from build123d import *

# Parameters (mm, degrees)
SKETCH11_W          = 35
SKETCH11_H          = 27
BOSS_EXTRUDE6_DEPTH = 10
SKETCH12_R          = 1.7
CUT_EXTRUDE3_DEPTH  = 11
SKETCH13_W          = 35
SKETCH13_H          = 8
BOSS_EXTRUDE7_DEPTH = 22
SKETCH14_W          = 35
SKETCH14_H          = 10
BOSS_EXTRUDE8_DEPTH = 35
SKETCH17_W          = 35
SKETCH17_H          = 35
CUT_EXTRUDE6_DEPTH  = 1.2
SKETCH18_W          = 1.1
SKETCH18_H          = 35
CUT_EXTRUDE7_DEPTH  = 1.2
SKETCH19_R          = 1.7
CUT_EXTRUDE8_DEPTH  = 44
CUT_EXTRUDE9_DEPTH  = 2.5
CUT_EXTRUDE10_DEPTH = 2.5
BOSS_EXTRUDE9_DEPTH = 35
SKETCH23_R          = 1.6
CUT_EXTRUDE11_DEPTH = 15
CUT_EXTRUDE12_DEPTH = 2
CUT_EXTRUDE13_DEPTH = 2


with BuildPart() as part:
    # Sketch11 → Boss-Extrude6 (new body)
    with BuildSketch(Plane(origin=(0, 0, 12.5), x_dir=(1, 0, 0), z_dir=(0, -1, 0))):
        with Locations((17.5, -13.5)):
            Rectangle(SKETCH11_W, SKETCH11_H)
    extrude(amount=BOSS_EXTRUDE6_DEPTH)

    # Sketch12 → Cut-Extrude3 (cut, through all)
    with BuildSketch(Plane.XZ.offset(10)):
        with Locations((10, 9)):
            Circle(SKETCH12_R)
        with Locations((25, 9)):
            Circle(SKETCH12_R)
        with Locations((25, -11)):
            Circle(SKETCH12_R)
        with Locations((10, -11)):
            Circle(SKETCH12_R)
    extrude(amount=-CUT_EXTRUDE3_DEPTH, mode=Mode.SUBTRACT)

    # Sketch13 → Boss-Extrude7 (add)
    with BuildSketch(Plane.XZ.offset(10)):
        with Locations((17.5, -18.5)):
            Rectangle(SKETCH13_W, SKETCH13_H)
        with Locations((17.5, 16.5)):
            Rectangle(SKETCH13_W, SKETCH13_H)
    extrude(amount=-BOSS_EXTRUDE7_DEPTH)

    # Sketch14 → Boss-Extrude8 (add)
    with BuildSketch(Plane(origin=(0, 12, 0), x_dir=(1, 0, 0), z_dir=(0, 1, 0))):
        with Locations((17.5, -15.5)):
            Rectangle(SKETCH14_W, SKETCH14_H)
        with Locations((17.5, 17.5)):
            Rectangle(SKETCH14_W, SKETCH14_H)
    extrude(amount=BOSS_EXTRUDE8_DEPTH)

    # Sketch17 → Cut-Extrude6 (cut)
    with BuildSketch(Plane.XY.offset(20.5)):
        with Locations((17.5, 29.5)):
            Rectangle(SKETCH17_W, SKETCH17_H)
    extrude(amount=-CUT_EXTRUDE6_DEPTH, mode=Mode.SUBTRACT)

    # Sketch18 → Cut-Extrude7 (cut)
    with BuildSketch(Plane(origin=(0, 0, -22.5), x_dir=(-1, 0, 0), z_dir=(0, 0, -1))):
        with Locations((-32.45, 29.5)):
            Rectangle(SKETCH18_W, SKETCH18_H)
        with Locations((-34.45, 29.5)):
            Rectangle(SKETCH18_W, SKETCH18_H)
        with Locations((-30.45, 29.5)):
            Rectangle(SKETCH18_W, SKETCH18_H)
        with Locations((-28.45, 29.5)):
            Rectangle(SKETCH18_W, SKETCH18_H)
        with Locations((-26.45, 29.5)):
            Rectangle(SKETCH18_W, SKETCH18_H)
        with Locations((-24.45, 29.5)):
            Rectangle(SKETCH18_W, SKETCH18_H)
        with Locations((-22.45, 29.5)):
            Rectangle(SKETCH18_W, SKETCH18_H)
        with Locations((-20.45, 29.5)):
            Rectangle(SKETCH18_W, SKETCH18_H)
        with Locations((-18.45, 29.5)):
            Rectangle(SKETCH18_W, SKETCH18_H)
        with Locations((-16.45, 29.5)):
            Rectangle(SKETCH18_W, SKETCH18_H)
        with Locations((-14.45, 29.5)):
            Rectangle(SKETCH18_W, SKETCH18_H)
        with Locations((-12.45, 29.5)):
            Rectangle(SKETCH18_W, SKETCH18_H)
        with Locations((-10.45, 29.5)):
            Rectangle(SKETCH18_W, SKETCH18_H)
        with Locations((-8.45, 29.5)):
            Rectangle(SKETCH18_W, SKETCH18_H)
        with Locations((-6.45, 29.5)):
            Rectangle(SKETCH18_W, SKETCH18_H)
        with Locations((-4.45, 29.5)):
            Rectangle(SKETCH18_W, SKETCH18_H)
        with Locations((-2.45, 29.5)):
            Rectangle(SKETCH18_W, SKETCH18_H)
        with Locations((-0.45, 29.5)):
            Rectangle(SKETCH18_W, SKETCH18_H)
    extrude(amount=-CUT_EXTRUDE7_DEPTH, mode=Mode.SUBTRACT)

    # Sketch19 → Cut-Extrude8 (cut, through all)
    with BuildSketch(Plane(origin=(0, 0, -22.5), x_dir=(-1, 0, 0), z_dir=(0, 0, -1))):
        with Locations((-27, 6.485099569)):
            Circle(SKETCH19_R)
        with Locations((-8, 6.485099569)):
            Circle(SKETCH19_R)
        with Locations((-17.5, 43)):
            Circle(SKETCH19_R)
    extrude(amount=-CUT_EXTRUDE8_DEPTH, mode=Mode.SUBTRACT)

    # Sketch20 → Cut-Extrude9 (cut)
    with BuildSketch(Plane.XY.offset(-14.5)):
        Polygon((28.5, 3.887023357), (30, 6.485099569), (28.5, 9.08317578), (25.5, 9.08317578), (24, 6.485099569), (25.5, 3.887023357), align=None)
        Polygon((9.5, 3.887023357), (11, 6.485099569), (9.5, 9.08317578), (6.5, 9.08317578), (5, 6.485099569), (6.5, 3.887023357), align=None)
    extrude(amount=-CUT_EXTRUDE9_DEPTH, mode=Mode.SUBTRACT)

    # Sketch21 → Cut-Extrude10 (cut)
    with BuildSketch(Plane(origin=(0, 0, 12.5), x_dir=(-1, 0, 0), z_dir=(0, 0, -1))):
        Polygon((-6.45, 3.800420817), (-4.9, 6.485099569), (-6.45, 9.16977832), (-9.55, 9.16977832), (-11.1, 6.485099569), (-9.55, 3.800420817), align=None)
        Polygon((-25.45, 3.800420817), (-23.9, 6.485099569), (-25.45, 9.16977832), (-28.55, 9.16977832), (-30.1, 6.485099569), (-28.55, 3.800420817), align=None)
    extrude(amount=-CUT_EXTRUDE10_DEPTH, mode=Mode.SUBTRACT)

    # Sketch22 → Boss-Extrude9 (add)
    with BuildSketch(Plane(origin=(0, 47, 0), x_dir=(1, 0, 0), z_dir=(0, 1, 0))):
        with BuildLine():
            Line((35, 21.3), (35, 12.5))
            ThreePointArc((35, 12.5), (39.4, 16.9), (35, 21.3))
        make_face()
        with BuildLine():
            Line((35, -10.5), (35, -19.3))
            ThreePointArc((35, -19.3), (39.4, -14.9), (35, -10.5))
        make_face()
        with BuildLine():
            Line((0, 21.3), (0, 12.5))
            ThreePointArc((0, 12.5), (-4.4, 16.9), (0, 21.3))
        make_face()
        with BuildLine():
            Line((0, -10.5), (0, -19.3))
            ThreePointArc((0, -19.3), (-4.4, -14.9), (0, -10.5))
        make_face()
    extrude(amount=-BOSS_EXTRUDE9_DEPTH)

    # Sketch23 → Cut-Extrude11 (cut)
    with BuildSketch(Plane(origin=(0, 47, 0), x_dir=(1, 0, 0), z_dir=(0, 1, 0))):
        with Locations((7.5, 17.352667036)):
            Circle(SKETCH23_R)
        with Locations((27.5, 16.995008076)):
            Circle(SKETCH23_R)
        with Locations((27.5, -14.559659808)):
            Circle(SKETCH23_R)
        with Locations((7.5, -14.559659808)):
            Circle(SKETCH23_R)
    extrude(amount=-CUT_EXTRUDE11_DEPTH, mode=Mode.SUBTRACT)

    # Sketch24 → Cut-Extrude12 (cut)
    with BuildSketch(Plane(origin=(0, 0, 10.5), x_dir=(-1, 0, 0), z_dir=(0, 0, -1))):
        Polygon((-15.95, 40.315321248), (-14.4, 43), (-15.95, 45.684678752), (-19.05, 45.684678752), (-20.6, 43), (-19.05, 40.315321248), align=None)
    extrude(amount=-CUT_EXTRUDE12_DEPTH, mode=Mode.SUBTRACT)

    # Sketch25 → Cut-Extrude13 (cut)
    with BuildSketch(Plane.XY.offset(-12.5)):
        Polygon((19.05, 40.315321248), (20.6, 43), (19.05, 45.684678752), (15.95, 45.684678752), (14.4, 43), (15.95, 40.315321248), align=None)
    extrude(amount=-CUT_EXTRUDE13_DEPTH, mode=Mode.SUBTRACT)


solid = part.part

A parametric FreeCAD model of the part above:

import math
import FreeCAD as App
import Part
import Sketcher
from FreeCAD import Vector
Q = App.Units.Quantity


def add_polygon(sketch, points):
    """Adds a closed chain of lines whose ends are joined by coincident constraints."""
    first, n = sketch.GeometryCount, len(points)
    for a, b in zip(points, points[1:] + points[:1]):
        sketch.addGeometry(Part.LineSegment(App.Vector(*a, 0), App.Vector(*b, 0)), False)
    for i in range(n):
        sketch.addConstraint(Sketcher.Constraint("Coincident", first + i, 2, first + (i + 1) % n, 1))

doc = App.newDocument("Part")
body = doc.addObject("PartDesign::Body", "Body")

sketch1 = doc.addObject("Sketcher::SketchObject", "Sketch")
body.addObject(sketch1)
sketch1.AttachmentSupport = (doc.XZ_Plane, [""])
sketch1.MapMode = "FlatFace"
add_polygon(sketch1, [(0, 12.5), (0, -14.5), (35, -14.5), (35, 12.5)])
sketch1.addConstraint(Sketcher.Constraint("Vertical", 0))
sketch1.addConstraint(Sketcher.Constraint("Horizontal", 1))
sketch1.addConstraint(Sketcher.Constraint("Vertical", 2))
sketch1.addConstraint(Sketcher.Constraint("Horizontal", 3))
sketch1.addConstraint(Sketcher.Constraint("PointOnObject", 0, 2, -2))
sketch1.addConstraint(Sketcher.Constraint("DistanceX", 1, 1, 1, 2, Q("35 mm")))
sketch1.addConstraint(Sketcher.Constraint("DistanceY", 0, 2, 0, 1, Q("27 mm")))
sketch1.addConstraint(Sketcher.Constraint("DistanceY", 0, 2, -1, 1, Q("14.5 mm")))
pad1 = doc.addObject("PartDesign::Pad", "Pad")
body.addObject(pad1)
pad1.Profile = sketch1
pad1.Length = 10

sketch2 = doc.addObject("Sketcher::SketchObject", "Sketch001")
body.addObject(sketch2)
sketch2.AttachmentSupport = (doc.XZ_Plane, [""])
sketch2.MapMode = "FlatFace"
sketch2.AttachmentOffset = App.Placement(Vector(0, 0, 10), App.Rotation())
sketch2.addGeometry(Part.Circle(Vector(10, 9, 0), Vector(0, 0, 1), 1.7), False)
sketch2.addGeometry(Part.Circle(Vector(25, 9, 0), Vector(0, 0, 1), 1.7), False)
sketch2.addGeometry(Part.Circle(Vector(25, -11, 0), Vector(0, 0, 1), 1.7), False)
sketch2.addGeometry(Part.Circle(Vector(10, -11, 0), Vector(0, 0, 1), 1.7), False)
sketch2.addConstraint(Sketcher.Constraint("Equal", 0, 1))
sketch2.addConstraint(Sketcher.Constraint("Equal", 1, 2))
sketch2.addConstraint(Sketcher.Constraint("Equal", 2, 3))
sketch2.addConstraint(Sketcher.Constraint("Horizontal", 0, 3, 1, 3))
sketch2.addConstraint(Sketcher.Constraint("Horizontal", 2, 3, 3, 3))
sketch2.addConstraint(Sketcher.Constraint("Vertical", 1, 3, 2, 3))
sketch2.addConstraint(Sketcher.Constraint("Vertical", 0, 3, 3, 3))
sketch2.addConstraint(Sketcher.Constraint("Diameter", 0, Q("3.4 mm")))
sketch2.addConstraint(Sketcher.Constraint("DistanceX", -1, 1, 0, 3, Q("10 mm")))
sketch2.addConstraint(Sketcher.Constraint("DistanceY", -1, 1, 0, 3, Q("9 mm")))
sketch2.addConstraint(Sketcher.Constraint("DistanceX", -1, 1, 1, 3, Q("25 mm")))
sketch2.addConstraint(Sketcher.Constraint("DistanceY", 2, 3, -1, 1, Q("11 mm")))
pocket1 = doc.addObject("PartDesign::Pocket", "Pocket")
body.addObject(pocket1)
pocket1.Profile = sketch2
pocket1.Type = "ThroughAll"

sketch3 = doc.addObject("Sketcher::SketchObject", "Sketch002")
body.addObject(sketch3)
sketch3.AttachmentSupport = (doc.XZ_Plane, [""])
sketch3.MapMode = "FlatFace"
sketch3.AttachmentOffset = App.Placement(Vector(0, 0, 10), App.Rotation())
add_polygon(sketch3, [(0, -14.5), (0, -22.5), (35, -22.5), (35, -14.5)])
add_polygon(sketch3, [(0, 20.5), (0, 12.5), (35, 12.5), (35, 20.5)])
sketch3.addConstraint(Sketcher.Constraint("Vertical", 0))
sketch3.addConstraint(Sketcher.Constraint("Horizontal", 1))
sketch3.addConstraint(Sketcher.Constraint("Vertical", 2))
sketch3.addConstraint(Sketcher.Constraint("Horizontal", 3))
sketch3.addConstraint(Sketcher.Constraint("Vertical", 4))
sketch3.addConstraint(Sketcher.Constraint("Horizontal", 5))
sketch3.addConstraint(Sketcher.Constraint("Vertical", 6))
sketch3.addConstraint(Sketcher.Constraint("Horizontal", 7))
sketch3.addConstraint(Sketcher.Constraint("PointOnObject", 0, 2, -2))
sketch3.addConstraint(Sketcher.Constraint("PointOnObject", 4, 2, -2))
sketch3.addConstraint(Sketcher.Constraint("Vertical", 2, 2, 5, 2))
sketch3.addConstraint(Sketcher.Constraint("Equal", 2, 4))
sketch3.addConstraint(Sketcher.Constraint("DistanceX", 1, 1, 1, 2, Q("35 mm")))
sketch3.addConstraint(Sketcher.Constraint("DistanceY", 0, 2, 0, 1, Q("8 mm")))
sketch3.addConstraint(Sketcher.Constraint("DistanceY", 3, 2, 4, 2, Q("27 mm")))
sketch3.addConstraint(Sketcher.Constraint("DistanceY", 0, 2, -1, 1, Q("22.5 mm")))
pad2 = doc.addObject("PartDesign::Pad", "Pad001")
body.addObject(pad2)
pad2.Profile = sketch3
pad2.Length = 22
pad2.Reversed = True

sketch4 = doc.addObject("Sketcher::SketchObject", "Sketch003")
body.addObject(sketch4)
sketch4.AttachmentSupport = (doc.XZ_Plane, [""])
sketch4.MapMode = "FlatFace"
sketch4.AttachmentOffset = App.Placement(Vector(0, 0, -12), App.Rotation())
add_polygon(sketch4, [(0, 10.5), (0, 20.5), (35, 20.5), (35, 10.5)])
add_polygon(sketch4, [(0, -22.5), (0, -12.5), (35, -12.5), (35, -22.5)])
sketch4.addConstraint(Sketcher.Constraint("Vertical", 0))
sketch4.addConstraint(Sketcher.Constraint("Horizontal", 1))
sketch4.addConstraint(Sketcher.Constraint("Vertical", 2))
sketch4.addConstraint(Sketcher.Constraint("Horizontal", 3))
sketch4.addConstraint(Sketcher.Constraint("Vertical", 4))
sketch4.addConstraint(Sketcher.Constraint("Horizontal", 5))
sketch4.addConstraint(Sketcher.Constraint("Vertical", 6))
sketch4.addConstraint(Sketcher.Constraint("Horizontal", 7))
sketch4.addConstraint(Sketcher.Constraint("PointOnObject", 0, 2, -2))
sketch4.addConstraint(Sketcher.Constraint("PointOnObject", 4, 2, -2))
sketch4.addConstraint(Sketcher.Constraint("Vertical", 2, 2, 5, 2))
sketch4.addConstraint(Sketcher.Constraint("Equal", 2, 4))
sketch4.addConstraint(Sketcher.Constraint("DistanceX", 1, 1, 1, 2, Q("35 mm")))
sketch4.addConstraint(Sketcher.Constraint("DistanceY", 0, 1, 0, 2, Q("10 mm")))
sketch4.addConstraint(Sketcher.Constraint("DistanceY", 4, 2, 3, 2, Q("23 mm")))
sketch4.addConstraint(Sketcher.Constraint("DistanceY", -1, 1, 0, 2, Q("20.5 mm")))
pad3 = doc.addObject("PartDesign::Pad", "Pad002")
body.addObject(pad3)
pad3.Profile = sketch4
pad3.Length = 35
pad3.Reversed = True

sketch5 = doc.addObject("Sketcher::SketchObject", "Sketch004")
body.addObject(sketch5)
sketch5.AttachmentSupport = (doc.XY_Plane, [""])
sketch5.MapMode = "FlatFace"
sketch5.AttachmentOffset = App.Placement(Vector(0, 0, 20.5), App.Rotation())
add_polygon(sketch5, [(0, 47), (0, 12), (35, 12), (35, 47)])
sketch5.addConstraint(Sketcher.Constraint("Vertical", 0))
sketch5.addConstraint(Sketcher.Constraint("Horizontal", 1))
sketch5.addConstraint(Sketcher.Constraint("Vertical", 2))
sketch5.addConstraint(Sketcher.Constraint("Horizontal", 3))
sketch5.addConstraint(Sketcher.Constraint("PointOnObject", 0, 2, -2))
sketch5.addConstraint(Sketcher.Constraint("Equal", 3, 0))
sketch5.addConstraint(Sketcher.Constraint("DistanceX", 1, 1, 1, 2, Q("35 mm")))
sketch5.addConstraint(Sketcher.Constraint("DistanceY", -1, 1, 0, 2, Q("12 mm")))
pocket2 = doc.addObject("PartDesign::Pocket", "Pocket001")
body.addObject(pocket2)
pocket2.Profile = sketch5
pocket2.Length = 1.2

sketch6 = doc.addObject("Sketcher::SketchObject", "Sketch005")
body.addObject(sketch6)
sketch6.AttachmentSupport = (doc.XY_Plane, [""])
sketch6.MapMode = "FlatFace"
sketch6.AttachmentOffset = App.Placement(Vector(0, 0, -22.5), App.Rotation())
add_polygon(sketch6, [(33, 47), (33, 12), (31.9, 12), (31.9, 47)])
add_polygon(sketch6, [(35, 47), (35, 12), (33.9, 12), (33.9, 47)])
add_polygon(sketch6, [(31, 47), (31, 12), (29.9, 12), (29.9, 47)])
add_polygon(sketch6, [(29, 47), (29, 12), (27.9, 12), (27.9, 47)])
add_polygon(sketch6, [(27, 47), (27, 12), (25.9, 12), (25.9, 47)])
add_polygon(sketch6, [(25, 47), (25, 12), (23.9, 12), (23.9, 47)])
add_polygon(sketch6, [(23, 47), (23, 12), (21.9, 12), (21.9, 47)])
add_polygon(sketch6, [(21, 47), (21, 12), (19.9, 12), (19.9, 47)])
add_polygon(sketch6, [(19, 47), (19, 12), (17.9, 12), (17.9, 47)])
add_polygon(sketch6, [(17, 47), (17, 12), (15.9, 12), (15.9, 47)])
add_polygon(sketch6, [(15, 47), (15, 12), (13.9, 12), (13.9, 47)])
add_polygon(sketch6, [(13, 47), (13, 12), (11.9, 12), (11.9, 47)])
add_polygon(sketch6, [(11, 47), (11, 12), (9.9, 12), (9.9, 47)])
add_polygon(sketch6, [(9, 47), (9, 12), (7.9, 12), (7.9, 47)])
add_polygon(sketch6, [(7, 47), (7, 12), (5.9, 12), (5.9, 47)])
add_polygon(sketch6, [(5, 47), (5, 12), (3.9, 12), (3.9, 47)])
add_polygon(sketch6, [(3, 47), (3, 12), (1.9, 12), (1.9, 47)])
add_polygon(sketch6, [(1, 47), (1, 12), (-0.1, 12), (-0.1, 47)])
sketch6.addConstraint(Sketcher.Constraint("Vertical", 0))
sketch6.addConstraint(Sketcher.Constraint("Horizontal", 1))
sketch6.addConstraint(Sketcher.Constraint("Vertical", 2))
sketch6.addConstraint(Sketcher.Constraint("Horizontal", 3))
sketch6.addConstraint(Sketcher.Constraint("Vertical", 4))
sketch6.addConstraint(Sketcher.Constraint("Horizontal", 5))
sketch6.addConstraint(Sketcher.Constraint("Vertical", 6))
sketch6.addConstraint(Sketcher.Constraint("Horizontal", 7))
sketch6.addConstraint(Sketcher.Constraint("Vertical", 8))
sketch6.addConstraint(Sketcher.Constraint("Horizontal", 9))
sketch6.addConstraint(Sketcher.Constraint("Vertical", 10))
sketch6.addConstraint(Sketcher.Constraint("Horizontal", 11))
sketch6.addConstraint(Sketcher.Constraint("Vertical", 12))
sketch6.addConstraint(Sketcher.Constraint("Horizontal", 13))
sketch6.addConstraint(Sketcher.Constraint("Vertical", 14))
sketch6.addConstraint(Sketcher.Constraint("Horizontal", 15))
sketch6.addConstraint(Sketcher.Constraint("Vertical", 16))
sketch6.addConstraint(Sketcher.Constraint("Horizontal", 17))
sketch6.addConstraint(Sketcher.Constraint("Vertical", 18))
sketch6.addConstraint(Sketcher.Constraint("Horizontal", 19))
sketch6.addConstraint(Sketcher.Constraint("Vertical", 20))
sketch6.addConstraint(Sketcher.Constraint("Horizontal", 21))
sketch6.addConstraint(Sketcher.Constraint("Vertical", 22))
sketch6.addConstraint(Sketcher.Constraint("Horizontal", 23))
sketch6.addConstraint(Sketcher.Constraint("Vertical", 24))
sketch6.addConstraint(Sketcher.Constraint("Horizontal", 25))
sketch6.addConstraint(Sketcher.Constraint("Vertical", 26))
sketch6.addConstraint(Sketcher.Constraint("Horizontal", 27))
sketch6.addConstraint(Sketcher.Constraint("Vertical", 28))
sketch6.addConstraint(Sketcher.Constraint("Horizontal", 29))
sketch6.addConstraint(Sketcher.Constraint("Vertical", 30))
sketch6.addConstraint(Sketcher.Constraint("Horizontal", 31))
sketch6.addConstraint(Sketcher.Constraint("Vertical", 32))
sketch6.addConstraint(Sketcher.Constraint("Horizontal", 33))
sketch6.addConstraint(Sketcher.Constraint("Vertical", 34))
sketch6.addConstraint(Sketcher.Constraint("Horizontal", 35))
sketch6.addConstraint(Sketcher.Constraint("Vertical", 36))
sketch6.addConstraint(Sketcher.Constraint("Horizontal", 37))
sketch6.addConstraint(Sketcher.Constraint("Vertical", 38))
sketch6.addConstraint(Sketcher.Constraint("Horizontal", 39))
sketch6.addConstraint(Sketcher.Constraint("Vertical", 40))
sketch6.addConstraint(Sketcher.Constraint("Horizontal", 41))
sketch6.addConstraint(Sketcher.Constraint("Vertical", 42))
sketch6.addConstraint(Sketcher.Constraint("Horizontal", 43))
sketch6.addConstraint(Sketcher.Constraint("Vertical", 44))
sketch6.addConstraint(Sketcher.Constraint("Horizontal", 45))
sketch6.addConstraint(Sketcher.Constraint("Vertical", 46))
sketch6.addConstraint(Sketcher.Constraint("Horizontal", 47))
sketch6.addConstraint(Sketcher.Constraint("Vertical", 48))
sketch6.addConstraint(Sketcher.Constraint("Horizontal", 49))
sketch6.addConstraint(Sketcher.Constraint("Vertical", 50))
sketch6.addConstraint(Sketcher.Constraint("Horizontal", 51))
sketch6.addConstraint(Sketcher.Constraint("Vertical", 52))
sketch6.addConstraint(Sketcher.Constraint("Horizontal", 53))
sketch6.addConstraint(Sketcher.Constraint("Vertical", 54))
sketch6.addConstraint(Sketcher.Constraint("Horizontal", 55))
sketch6.addConstraint(Sketcher.Constraint("Vertical", 56))
sketch6.addConstraint(Sketcher.Constraint("Horizontal", 57))
sketch6.addConstraint(Sketcher.Constraint("Vertical", 58))
sketch6.addConstraint(Sketcher.Constraint("Horizontal", 59))
sketch6.addConstraint(Sketcher.Constraint("Vertical", 60))
sketch6.addConstraint(Sketcher.Constraint("Horizontal", 61))
sketch6.addConstraint(Sketcher.Constraint("Vertical", 62))
sketch6.addConstraint(Sketcher.Constraint("Horizontal", 63))
sketch6.addConstraint(Sketcher.Constraint("Vertical", 64))
sketch6.addConstraint(Sketcher.Constraint("Horizontal", 65))
sketch6.addConstraint(Sketcher.Constraint("Vertical", 66))
sketch6.addConstraint(Sketcher.Constraint("Horizontal", 67))
sketch6.addConstraint(Sketcher.Constraint("Vertical", 68))
sketch6.addConstraint(Sketcher.Constraint("Horizontal", 69))
sketch6.addConstraint(Sketcher.Constraint("Vertical", 70))
sketch6.addConstraint(Sketcher.Constraint("Horizontal", 71))
sketch6.addConstraint(Sketcher.Constraint("Horizontal", 1, 2, 4, 2))
sketch6.addConstraint(Sketcher.Constraint("Horizontal", 3, 2, 6, 2))
sketch6.addConstraint(Sketcher.Constraint("Horizontal", 5, 2, 8, 2))
sketch6.addConstraint(Sketcher.Constraint("Horizontal", 7, 2, 10, 2))
sketch6.addConstraint(Sketcher.Constraint("Horizontal", 9, 2, 12, 2))
sketch6.addConstraint(Sketcher.Constraint("Horizontal", 11, 2, 14, 2))
sketch6.addConstraint(Sketcher.Constraint("Horizontal", 13, 2, 16, 2))
sketch6.addConstraint(Sketcher.Constraint("Horizontal", 15, 2, 18, 2))
sketch6.addConstraint(Sketcher.Constraint("Horizontal", 17, 2, 20, 2))
sketch6.addConstraint(Sketcher.Constraint("Horizontal", 19, 2, 22, 2))
sketch6.addConstraint(Sketcher.Constraint("Horizontal", 21, 2, 24, 2))
sketch6.addConstraint(Sketcher.Constraint("Horizontal", 23, 2, 26, 2))
sketch6.addConstraint(Sketcher.Constraint("Horizontal", 25, 2, 28, 2))
sketch6.addConstraint(Sketcher.Constraint("Horizontal", 27, 2, 30, 2))
sketch6.addConstraint(Sketcher.Constraint("Horizontal", 29, 2, 32, 2))
sketch6.addConstraint(Sketcher.Constraint("Horizontal", 31, 2, 34, 2))
sketch6.addConstraint(Sketcher.Constraint("Horizontal", 33, 2, 36, 2))
sketch6.addConstraint(Sketcher.Constraint("Horizontal", 35, 2, 38, 2))
sketch6.addConstraint(Sketcher.Constraint("Horizontal", 37, 2, 40, 2))
sketch6.addConstraint(Sketcher.Constraint("Horizontal", 39, 2, 42, 2))
sketch6.addConstraint(Sketcher.Constraint("Horizontal", 41, 2, 44, 2))
sketch6.addConstraint(Sketcher.Constraint("Horizontal", 43, 2, 46, 2))
sketch6.addConstraint(Sketcher.Constraint("Horizontal", 45, 2, 48, 2))
sketch6.addConstraint(Sketcher.Constraint("Horizontal", 47, 2, 50, 2))
sketch6.addConstraint(Sketcher.Constraint("Horizontal", 49, 2, 52, 2))
sketch6.addConstraint(Sketcher.Constraint("Horizontal", 51, 2, 54, 2))
sketch6.addConstraint(Sketcher.Constraint("Horizontal", 53, 2, 56, 2))
sketch6.addConstraint(Sketcher.Constraint("Horizontal", 55, 2, 58, 2))
sketch6.addConstraint(Sketcher.Constraint("Horizontal", 57, 2, 60, 2))
sketch6.addConstraint(Sketcher.Constraint("Horizontal", 59, 2, 62, 2))
sketch6.addConstraint(Sketcher.Constraint("Horizontal", 61, 2, 64, 2))
sketch6.addConstraint(Sketcher.Constraint("Horizontal", 63, 2, 66, 2))
sketch6.addConstraint(Sketcher.Constraint("Horizontal", 65, 2, 68, 2))
sketch6.addConstraint(Sketcher.Constraint("Horizontal", 67, 2, 70, 2))
sketch6.addConstraint(Sketcher.Constraint("Equal", 3, 5))
sketch6.addConstraint(Sketcher.Constraint("Equal", 7, 9))
sketch6.addConstraint(Sketcher.Constraint("Equal", 11, 13))
sketch6.addConstraint(Sketcher.Constraint("Equal", 15, 17))
sketch6.addConstraint(Sketcher.Constraint("Equal", 19, 21))
sketch6.addConstraint(Sketcher.Constraint("Equal", 23, 25))
sketch6.addConstraint(Sketcher.Constraint("Equal", 27, 29))
sketch6.addConstraint(Sketcher.Constraint("Equal", 31, 33))
sketch6.addConstraint(Sketcher.Constraint("Equal", 35, 37))
sketch6.addConstraint(Sketcher.Constraint("Equal", 39, 41))
sketch6.addConstraint(Sketcher.Constraint("Equal", 43, 45))
sketch6.addConstraint(Sketcher.Constraint("Equal", 47, 49))
sketch6.addConstraint(Sketcher.Constraint("Equal", 51, 53))
sketch6.addConstraint(Sketcher.Constraint("Equal", 55, 57))
sketch6.addConstraint(Sketcher.Constraint("Equal", 59, 61))
sketch6.addConstraint(Sketcher.Constraint("Equal", 63, 65))
sketch6.addConstraint(Sketcher.Constraint("Equal", 67, 69))
sketch6.addConstraint(Sketcher.Constraint("DistanceY", 0, 2, 0, 1, Q("35 mm")))
sketch6.addConstraint(Sketcher.Constraint("DistanceX", 1, 2, 1, 1, Q("1.1 mm")))
sketch6.addConstraint(Sketcher.Constraint("DistanceX", -1, 1, 0, 2, Q("33 mm")))
sketch6.addConstraint(Sketcher.Constraint("DistanceY", -1, 1, 0, 2, Q("12 mm")))
sketch6.addConstraint(Sketcher.Constraint("DistanceX", -1, 1, 4, 2, Q("35 mm")))
sketch6.addConstraint(Sketcher.Constraint("DistanceX", -1, 1, 8, 2, Q("31 mm")))
sketch6.addConstraint(Sketcher.Constraint("DistanceX", -1, 1, 12, 2, Q("29 mm")))
sketch6.addConstraint(Sketcher.Constraint("DistanceX", -1, 1, 16, 2, Q("27 mm")))
sketch6.addConstraint(Sketcher.Constraint("DistanceX", -1, 1, 20, 2, Q("25 mm")))
sketch6.addConstraint(Sketcher.Constraint("DistanceX", -1, 1, 24, 2, Q("23 mm")))
sketch6.addConstraint(Sketcher.Constraint("DistanceX", -1, 1, 28, 2, Q("21 mm")))
sketch6.addConstraint(Sketcher.Constraint("DistanceX", -1, 1, 32, 2, Q("19 mm")))
sketch6.addConstraint(Sketcher.Constraint("DistanceX", -1, 1, 36, 2, Q("17 mm")))
sketch6.addConstraint(Sketcher.Constraint("DistanceX", -1, 1, 40, 2, Q("15 mm")))
sketch6.addConstraint(Sketcher.Constraint("DistanceX", -1, 1, 44, 2, Q("13 mm")))
sketch6.addConstraint(Sketcher.Constraint("DistanceX", -1, 1, 48, 2, Q("11 mm")))
sketch6.addConstraint(Sketcher.Constraint("DistanceX", -1, 1, 52, 2, Q("9 mm")))
sketch6.addConstraint(Sketcher.Constraint("DistanceX", -1, 1, 56, 2, Q("7 mm")))
sketch6.addConstraint(Sketcher.Constraint("DistanceX", -1, 1, 60, 2, Q("5 mm")))
sketch6.addConstraint(Sketcher.Constraint("DistanceX", -1, 1, 64, 2, Q("3 mm")))
sketch6.addConstraint(Sketcher.Constraint("DistanceX", -1, 1, 68, 2, Q("1 mm")))
pocket3 = doc.addObject("PartDesign::Pocket", "Pocket002")
body.addObject(pocket3)
pocket3.Profile = sketch6
pocket3.Length = 1.2
pocket3.Reversed = True

sketch7 = doc.addObject("Sketcher::SketchObject", "Sketch006")
body.addObject(sketch7)
sketch7.AttachmentSupport = (doc.XY_Plane, [""])
sketch7.MapMode = "FlatFace"
sketch7.AttachmentOffset = App.Placement(Vector(0, 0, -22.5), App.Rotation())
sketch7.addGeometry(Part.Circle(Vector(27, 6.4851, 0), Vector(0, 0, 1), 1.7), False)
sketch7.addGeometry(Part.Circle(Vector(8, 6.4851, 0), Vector(0, 0, 1), 1.7), False)
sketch7.addGeometry(Part.Circle(Vector(17.5, 43, 0), Vector(0, 0, 1), 1.7), False)
sketch7.addConstraint(Sketcher.Constraint("Equal", 0, 1))
sketch7.addConstraint(Sketcher.Constraint("Equal", 1, 2))
sketch7.addConstraint(Sketcher.Constraint("Horizontal", 0, 3, 1, 3))
sketch7.addConstraint(Sketcher.Constraint("Diameter", 0, Q("3.4 mm")))
sketch7.addConstraint(Sketcher.Constraint("DistanceX", -1, 1, 0, 3, Q("27 mm")))
sketch7.addConstraint(Sketcher.Constraint("DistanceX", -1, 1, 1, 3, Q("8 mm")))
sketch7.addConstraint(Sketcher.Constraint("DistanceY", -1, 1, 2, 3, Q("43 mm")))
sketch7.addConstraint(Sketcher.Constraint("DistanceX", -1, 1, 2, 3, Q("17.5 mm")))
sketch7.addConstraint(Sketcher.Constraint("DistanceY", -1, 1, 0, 3, Q("6.4851 mm")))
pocket4 = doc.addObject("PartDesign::Pocket", "Pocket003")
body.addObject(pocket4)
pocket4.Profile = sketch7
pocket4.Type = "ThroughAll"
pocket4.Reversed = True

sketch8 = doc.addObject("Sketcher::SketchObject", "Sketch007")
body.addObject(sketch8)
sketch8.AttachmentSupport = (doc.XY_Plane, [""])
sketch8.MapMode = "FlatFace"
sketch8.AttachmentOffset = App.Placement(Vector(0, 0, -14.5), App.Rotation())
add_polygon(sketch8, [(28.5, 3.887023), (30, 6.4851), (28.5, 9.083176), (25.5, 9.083176), (24, 6.4851), (25.5, 3.887023)])
add_polygon(sketch8, [(9.5, 3.887023), (11, 6.4851), (9.5, 9.083176), (6.5, 9.083176), (5, 6.4851), (6.5, 3.887023)])
sketch8.addConstraint(Sketcher.Constraint("Horizontal", 2))
sketch8.addConstraint(Sketcher.Constraint("Horizontal", 5))
sketch8.addConstraint(Sketcher.Constraint("Horizontal", 8))
sketch8.addConstraint(Sketcher.Constraint("Horizontal", 11))
sketch8.addConstraint(Sketcher.Constraint("Parallel", 0, 3))
sketch8.addConstraint(Sketcher.Constraint("Parallel", 1, 4))
sketch8.addConstraint(Sketcher.Constraint("Parallel", 3, 6))
sketch8.addConstraint(Sketcher.Constraint("Parallel", 4, 7))
sketch8.addConstraint(Sketcher.Constraint("Parallel", 6, 9))
sketch8.addConstraint(Sketcher.Constraint("Parallel", 7, 10))
sketch8.addConstraint(Sketcher.Constraint("Horizontal", 0, 2, 3, 2))
sketch8.addConstraint(Sketcher.Constraint("Horizontal", 3, 2, 6, 2))
sketch8.addConstraint(Sketcher.Constraint("Horizontal", 2, 2, 7, 2))
sketch8.addConstraint(Sketcher.Constraint("Horizontal", 6, 2, 9, 2))
sketch8.addConstraint(Sketcher.Constraint("Horizontal", 5, 2, 10, 2))
sketch8.addConstraint(Sketcher.Constraint("Vertical", 2, 2, 4, 2))
sketch8.addConstraint(Sketcher.Constraint("Vertical", 1, 2, 5, 2))
sketch8.addConstraint(Sketcher.Constraint("Equal", 5, 8))
sketch8.addConstraint(Sketcher.Constraint("DistanceX", 2, 2, 2, 1, Q("3 mm")))
sketch8.addConstraint(Sketcher.Constraint("Angle", 0, Q("60 deg")))
sketch8.addConstraint(Sketcher.Constraint("Distance", 0, Q("3 mm")))
sketch8.addConstraint(Sketcher.Constraint("DistanceX", -1, 1, 0, 2, Q("30 mm")))
sketch8.addConstraint(Sketcher.Constraint("DistanceX", -1, 1, 6, 2, Q("11 mm")))
sketch8.addConstraint(Sketcher.Constraint("DistanceY", -1, 1, 0, 2, Q("6.4851 mm")))
pocket5 = doc.addObject("PartDesign::Pocket", "Pocket004")
body.addObject(pocket5)
pocket5.Profile = sketch8
pocket5.Length = 2.5

sketch9 = doc.addObject("Sketcher::SketchObject", "Sketch008")
body.addObject(sketch9)
sketch9.AttachmentSupport = (doc.XY_Plane, [""])
sketch9.MapMode = "FlatFace"
sketch9.AttachmentOffset = App.Placement(Vector(0, 0, 12.5), App.Rotation())
add_polygon(sketch9, [(6.45, 3.800421), (4.9, 6.4851), (6.45, 9.169778), (9.55, 9.169778), (11.1, 6.4851), (9.55, 3.800421)])
add_polygon(sketch9, [(25.45, 3.800421), (23.9, 6.4851), (25.45, 9.169778), (28.55, 9.169778), (30.1, 6.4851), (28.55, 3.800421)])
sketch9.addConstraint(Sketcher.Constraint("Horizontal", 2))
sketch9.addConstraint(Sketcher.Constraint("Horizontal", 5))
sketch9.addConstraint(Sketcher.Constraint("Horizontal", 8))
sketch9.addConstraint(Sketcher.Constraint("Horizontal", 11))
sketch9.addConstraint(Sketcher.Constraint("Parallel", 0, 3))
sketch9.addConstraint(Sketcher.Constraint("Parallel", 1, 4))
sketch9.addConstraint(Sketcher.Constraint("Parallel", 3, 6))
sketch9.addConstraint(Sketcher.Constraint("Parallel", 4, 7))
sketch9.addConstraint(Sketcher.Constraint("Parallel", 6, 9))
sketch9.addConstraint(Sketcher.Constraint("Parallel", 7, 10))
sketch9.addConstraint(Sketcher.Constraint("Horizontal", 0, 2, 3, 2))
sketch9.addConstraint(Sketcher.Constraint("Horizontal", 3, 2, 6, 2))
sketch9.addConstraint(Sketcher.Constraint("Horizontal", 2, 2, 7, 2))
sketch9.addConstraint(Sketcher.Constraint("Horizontal", 6, 2, 9, 2))
sketch9.addConstraint(Sketcher.Constraint("Horizontal", 5, 2, 10, 2))
sketch9.addConstraint(Sketcher.Constraint("Vertical", 2, 2, 4, 2))
sketch9.addConstraint(Sketcher.Constraint("Vertical", 1, 2, 5, 2))
sketch9.addConstraint(Sketcher.Constraint("Equal", 5, 8))
sketch9.addConstraint(Sketcher.Constraint("Angle", 0, Q("120 deg")))
sketch9.addConstraint(Sketcher.Constraint("DistanceX", 2, 1, 2, 2, Q("3.1 mm")))
sketch9.addConstraint(Sketcher.Constraint("DistanceX", 1, 2, 7, 2, Q("19 mm")))
sketch9.addConstraint(Sketcher.Constraint("Distance", 0, Q("3.1 mm")))
sketch9.addConstraint(Sketcher.Constraint("DistanceX", -1, 1, 0, 2, Q("4.9 mm")))
sketch9.addConstraint(Sketcher.Constraint("DistanceY", -1, 1, 0, 2, Q("6.4851 mm")))
pocket6 = doc.addObject("PartDesign::Pocket", "Pocket005")
body.addObject(pocket6)
pocket6.Profile = sketch9
pocket6.Length = 2.5
pocket6.Reversed = True

sketch10 = doc.addObject("Sketcher::SketchObject", "Sketch009")
body.addObject(sketch10)
sketch10.AttachmentSupport = (doc.XZ_Plane, [""])
sketch10.MapMode = "FlatFace"
sketch10.AttachmentOffset = App.Placement(Vector(0, 0, -47), App.Rotation())
sketch10.addGeometry(Part.LineSegment(Vector(35, -21.3, 0), Vector(35, -12.5, 0)), False)
sketch10.addGeometry(Part.ArcOfCircle(Part.Circle(Vector(35, -16.9, 0), Vector(0, 0, 1), 4.4), math.radians(-90), math.radians(90)), False)
sketch10.addGeometry(Part.LineSegment(Vector(35, 10.5, 0), Vector(35, 19.3, 0)), False)
sketch10.addGeometry(Part.ArcOfCircle(Part.Circle(Vector(35, 14.9, 0), Vector(0, 0, 1), 4.4), math.radians(-90), math.radians(90)), False)
sketch10.addGeometry(Part.LineSegment(Vector(0, -12.5, 0), Vector(0, -21.3, 0)), False)
sketch10.addGeometry(Part.ArcOfCircle(Part.Circle(Vector(0, -16.9, 0), Vector(0, 0, 1), 4.4), math.radians(90), math.radians(270)), False)
sketch10.addGeometry(Part.LineSegment(Vector(0, 19.3, 0), Vector(0, 10.5, 0)), False)
sketch10.addGeometry(Part.ArcOfCircle(Part.Circle(Vector(0, 14.9, 0), Vector(0, 0, 1), 4.4), math.radians(90), math.radians(270)), False)
sketch10.addConstraint(Sketcher.Constraint("Coincident", 0, 1, 1, 1))
sketch10.addConstraint(Sketcher.Constraint("Coincident", 1, 2, 0, 2))
sketch10.addConstraint(Sketcher.Constraint("Coincident", 2, 1, 3, 1))
sketch10.addConstraint(Sketcher.Constraint("Coincident", 3, 2, 2, 2))
sketch10.addConstraint(Sketcher.Constraint("Coincident", 4, 1, 5, 1))
sketch10.addConstraint(Sketcher.Constraint("Coincident", 5, 2, 4, 2))
sketch10.addConstraint(Sketcher.Constraint("Coincident", 6, 1, 7, 1))
sketch10.addConstraint(Sketcher.Constraint("Coincident", 7, 2, 6, 2))
sketch10.addConstraint(Sketcher.Constraint("Vertical", 0))
sketch10.addConstraint(Sketcher.Constraint("Vertical", 2))
sketch10.addConstraint(Sketcher.Constraint("Vertical", 4))
sketch10.addConstraint(Sketcher.Constraint("Vertical", 6))
sketch10.addConstraint(Sketcher.Constraint("Equal", 1, 3))
sketch10.addConstraint(Sketcher.Constraint("Equal", 3, 5))
sketch10.addConstraint(Sketcher.Constraint("Equal", 5, 7))
sketch10.addConstraint(Sketcher.Constraint("PointOnObject", 5, 3, -2))
sketch10.addConstraint(Sketcher.Constraint("PointOnObject", 7, 3, -2))
sketch10.addConstraint(Sketcher.Constraint("PointOnObject", 4, 1, -2))
sketch10.addConstraint(Sketcher.Constraint("PointOnObject", 6, 1, -2))
sketch10.addConstraint(Sketcher.Constraint("Horizontal", 1, 3, 5, 3))
sketch10.addConstraint(Sketcher.Constraint("Horizontal", 3, 3, 7, 3))
sketch10.addConstraint(Sketcher.Constraint("Vertical", 1, 3, 3, 3))
sketch10.addConstraint(Sketcher.Constraint("Vertical", 3, 3, 0, 1))
sketch10.addConstraint(Sketcher.Constraint("Vertical", 1, 2, 2, 1))
sketch10.addConstraint(Sketcher.Constraint("Radius", 1, Q("4.4 mm")))
sketch10.addConstraint(Sketcher.Constraint("DistanceX", -1, 1, 1, 3, Q("35 mm")))
sketch10.addConstraint(Sketcher.Constraint("DistanceY", 1, 2, 2, 1, Q("23 mm")))
sketch10.addConstraint(Sketcher.Constraint("DistanceY", 1, 3, -1, 1, Q("16.9 mm")))
pad4 = doc.addObject("PartDesign::Pad", "Pad003")
body.addObject(pad4)
pad4.Profile = sketch10
pad4.Length = 35

sketch11 = doc.addObject("Sketcher::SketchObject", "Sketch010")
body.addObject(sketch11)
sketch11.AttachmentSupport = (doc.XZ_Plane, [""])
sketch11.MapMode = "FlatFace"
sketch11.AttachmentOffset = App.Placement(Vector(0, 0, -47), App.Rotation())
sketch11.addGeometry(Part.Circle(Vector(7.5, -17.352667, 0), Vector(0, 0, 1), 1.6), False)
sketch11.addGeometry(Part.Circle(Vector(27.5, -16.995008, 0), Vector(0, 0, 1), 1.6), False)
sketch11.addGeometry(Part.Circle(Vector(27.5, 14.55966, 0), Vector(0, 0, 1), 1.6), False)
sketch11.addGeometry(Part.Circle(Vector(7.5, 14.55966, 0), Vector(0, 0, 1), 1.6), False)
sketch11.addConstraint(Sketcher.Constraint("Equal", 0, 1))
sketch11.addConstraint(Sketcher.Constraint("Equal", 1, 2))
sketch11.addConstraint(Sketcher.Constraint("Equal", 2, 3))
sketch11.addConstraint(Sketcher.Constraint("Horizontal", 2, 3, 3, 3))
sketch11.addConstraint(Sketcher.Constraint("Vertical", 1, 3, 2, 3))
sketch11.addConstraint(Sketcher.Constraint("Vertical", 0, 3, 3, 3))
sketch11.addConstraint(Sketcher.Constraint("Diameter", 0, Q("3.2 mm")))
sketch11.addConstraint(Sketcher.Constraint("DistanceX", 0, 3, 1, 3, Q("20 mm")))
sketch11.addConstraint(Sketcher.Constraint("DistanceX", -1, 1, 0, 3, Q("7.5 mm")))
sketch11.addConstraint(Sketcher.Constraint("DistanceY", 1, 3, -1, 1, Q("16.995008 mm")))
sketch11.addConstraint(Sketcher.Constraint("DistanceY", -1, 1, 2, 3, Q("14.55966 mm")))
sketch11.addConstraint(Sketcher.Constraint("DistanceY", 0, 3, 1, 3, Q("0.357659 mm")))
pocket7 = doc.addObject("PartDesign::Pocket", "Pocket006")
body.addObject(pocket7)
pocket7.Profile = sketch11
pocket7.Length = 15
pocket7.Reversed = True

sketch12 = doc.addObject("Sketcher::SketchObject", "Sketch011")
body.addObject(sketch12)
sketch12.AttachmentSupport = (doc.XY_Plane, [""])
sketch12.MapMode = "FlatFace"
sketch12.AttachmentOffset = App.Placement(Vector(0, 0, 10.5), App.Rotation())
add_polygon(sketch12, [(15.95, 40.315321), (14.4, 43), (15.95, 45.684679), (19.05, 45.684679), (20.6, 43), (19.05, 40.315321)])
sketch12.addConstraint(Sketcher.Constraint("Horizontal", 2))
sketch12.addConstraint(Sketcher.Constraint("Horizontal", 5))
sketch12.addConstraint(Sketcher.Constraint("Parallel", 0, 3))
sketch12.addConstraint(Sketcher.Constraint("Parallel", 1, 4))
sketch12.addConstraint(Sketcher.Constraint("Horizontal", 0, 2, 3, 2))
sketch12.addConstraint(Sketcher.Constraint("Vertical", 2, 2, 4, 2))
sketch12.addConstraint(Sketcher.Constraint("Vertical", 1, 2, 5, 2))
sketch12.addConstraint(Sketcher.Constraint("Angle", 0, Q("120 deg")))
sketch12.addConstraint(Sketcher.Constraint("DistanceX", 2, 1, 2, 2, Q("3.1 mm")))
sketch12.addConstraint(Sketcher.Constraint("DistanceY", -1, 1, 0, 2, Q("43 mm")))
sketch12.addConstraint(Sketcher.Constraint("Distance", 0, Q("3.1 mm")))
sketch12.addConstraint(Sketcher.Constraint("DistanceX", -1, 1, 0, 2, Q("14.4 mm")))
pocket8 = doc.addObject("PartDesign::Pocket", "Pocket007")
body.addObject(pocket8)
pocket8.Profile = sketch12
pocket8.Length = 2
pocket8.Reversed = True

sketch13 = doc.addObject("Sketcher::SketchObject", "Sketch012")
body.addObject(sketch13)
sketch13.AttachmentSupport = (doc.XY_Plane, [""])
sketch13.MapMode = "FlatFace"
sketch13.AttachmentOffset = App.Placement(Vector(0, 0, -12.5), App.Rotation())
add_polygon(sketch13, [(19.05, 40.315321), (20.6, 43), (19.05, 45.684679), (15.95, 45.684679), (14.4, 43), (15.95, 40.315321)])
sketch13.addConstraint(Sketcher.Constraint("Horizontal", 2))
sketch13.addConstraint(Sketcher.Constraint("Horizontal", 5))
sketch13.addConstraint(Sketcher.Constraint("Parallel", 0, 3))
sketch13.addConstraint(Sketcher.Constraint("Parallel", 1, 4))
sketch13.addConstraint(Sketcher.Constraint("Horizontal", 0, 2, 3, 2))
sketch13.addConstraint(Sketcher.Constraint("Vertical", 2, 2, 4, 2))
sketch13.addConstraint(Sketcher.Constraint("Vertical", 1, 2, 5, 2))
sketch13.addConstraint(Sketcher.Constraint("Angle", 0, Q("60 deg")))
sketch13.addConstraint(Sketcher.Constraint("DistanceX", 2, 2, 2, 1, Q("3.1 mm")))
sketch13.addConstraint(Sketcher.Constraint("DistanceY", -1, 1, 0, 2, Q("43 mm")))
sketch13.addConstraint(Sketcher.Constraint("Distance", 0, Q("3.1 mm")))
sketch13.addConstraint(Sketcher.Constraint("DistanceX", -1, 1, 0, 2, Q("20.6 mm")))
pocket9 = doc.addObject("PartDesign::Pocket", "Pocket008")
body.addObject(pocket9)
pocket9.Profile = sketch13
pocket9.Length = 2

doc.recompute()
